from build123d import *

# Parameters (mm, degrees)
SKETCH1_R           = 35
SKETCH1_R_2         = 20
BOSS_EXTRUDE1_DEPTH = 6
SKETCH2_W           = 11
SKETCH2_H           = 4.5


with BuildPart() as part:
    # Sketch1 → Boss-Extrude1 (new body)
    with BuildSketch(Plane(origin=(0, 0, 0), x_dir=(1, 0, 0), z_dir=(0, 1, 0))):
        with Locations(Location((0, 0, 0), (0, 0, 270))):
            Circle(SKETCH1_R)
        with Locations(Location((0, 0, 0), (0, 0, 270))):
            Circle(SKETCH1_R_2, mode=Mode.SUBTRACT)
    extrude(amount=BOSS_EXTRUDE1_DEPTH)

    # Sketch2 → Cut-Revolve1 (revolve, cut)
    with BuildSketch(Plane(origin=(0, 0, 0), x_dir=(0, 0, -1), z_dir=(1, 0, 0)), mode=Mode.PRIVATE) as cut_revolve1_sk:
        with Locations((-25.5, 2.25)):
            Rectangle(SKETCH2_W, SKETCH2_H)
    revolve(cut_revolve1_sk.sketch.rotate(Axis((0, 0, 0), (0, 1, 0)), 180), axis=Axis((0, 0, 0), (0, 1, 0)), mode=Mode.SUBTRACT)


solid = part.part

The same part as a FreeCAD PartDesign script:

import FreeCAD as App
import Part
import Sketcher

V = App.Vector
Q = App.Units.Quantity

doc = App.newDocument("Part")
params = doc.addObject("Spreadsheet::Sheet", "Params")
for row, (alias, value) in enumerate([
    ("sketch1_diameter", "70 mm"),
    ("sketch1_diameter2", "40 mm"),
    ("pad1_length", "6 mm"),
    ("sketch2_height", "11 mm"),
    ("sketch2_width", "4.5 mm"),
    ("groove_angle", "360 deg"),
], start=1):
    params.set(f"A{row}", alias)
    params.set(f"B{row}", "=" + value)
    params.setAlias(f"B{row}", alias)

body = doc.addObject("PartDesign::Body", "Body")

# Sketch on XZ plane
sketch1 = body.newObject("Sketcher::SketchObject", "Sketch")
sketch1.AttachmentSupport = (doc.getObject("XZ_Plane"), [""])
sketch1.MapMode = "FlatFace"
sketch1.addGeometry(Part.Circle(V(0, 0, 0), V(0, 0, 1), 35), False)
sketch1.addGeometry(Part.Circle(V(0, 0, 0), V(0, 0, 1), 20), False)
sketch1.addConstraint(Sketcher.Constraint("Coincident", 0, 3, -1, 1))
sketch1.addConstraint(Sketcher.Constraint("Coincident", 1, 3, -1, 1))
sketch1.addConstraint(Sketcher.Constraint("Diameter", 0, Q("70 mm")))
sketch1.addConstraint(Sketcher.Constraint("Diameter", 1, Q("40 mm")))
sketch1.setExpression("Constraints[2]", "Params.sketch1_diameter")
sketch1.setExpression("Constraints[3]", "Params.sketch1_diameter2")
pad1 = body.newObject("PartDesign::Pad", "Pad")
pad1.Profile = sketch1
pad1.setExpression("Length", "Params.pad1_length")
pad1.Reversed = True

# Sketch on YZ plane
sketch2 = body.newObject("Sketcher::SketchObject", "Sketch001")
sketch2.AttachmentSupport = (doc.getObject("YZ_Plane"), [""])
sketch2.MapMode = "FlatFace"
sketch2.addGeometry(Part.LineSegment(V(4.5, 31, 0), V(0, 31, 0)), False)
sketch2.addGeometry(Part.LineSegment(V(0, 31, 0), V(0, 20, 0)), False)
sketch2.addGeometry(Part.LineSegment(V(0, 20, 0), V(4.5, 20, 0)), False)
sketch2.addGeometry(Part.LineSegment(V(4.5, 20, 0), V(4.5, 31, 0)), False)
sketch2.addConstraint(Sketcher.Constraint("Coincident", 0, 2, 1, 1))
sketch2.addConstraint(Sketcher.Constraint("Coincident", 1, 2, 2, 1))
sketch2.addConstraint(Sketcher.Constraint("Coincident", 2, 2, 3, 1))
sketch2.addConstraint(Sketcher.Constraint("Coincident", 3, 2, 0, 1))
sketch2.addConstraint(Sketcher.Constraint("Horizontal", 0))
sketch2.addConstraint(Sketcher.Constraint("Vertical", 1))
sketch2.addConstraint(Sketcher.Constraint("Horizontal", 2))
sketch2.addConstraint(Sketcher.Constraint("Vertical", 3))
sketch2.addConstraint(Sketcher.Constraint("PointOnObject", 0, 2, -2))
sketch2.addConstraint(Sketcher.Constraint("DistanceY", 1, 2, 1, 1, Q("11 mm")))
sketch2.addConstraint(Sketcher.Constraint("DistanceX", 0, 2, 0, 1, Q("4.5 mm")))
sketch2.addConstraint(Sketcher.Constraint("DistanceY", -1, 1, 0, 2, Q("31 mm")))
sketch2.setExpression("Constraints[9]", "Params.sketch2_height")
sketch2.setExpression("Constraints[10]", "Params.sketch2_width")
groove = body.newObject("PartDesign::Groove", "Groove")
groove.Profile = sketch2
groove.ReferenceAxis = (sketch2, ["H_Axis"])
groove.setExpression("Angle", "Params.groove_angle")

doc.recompute()
